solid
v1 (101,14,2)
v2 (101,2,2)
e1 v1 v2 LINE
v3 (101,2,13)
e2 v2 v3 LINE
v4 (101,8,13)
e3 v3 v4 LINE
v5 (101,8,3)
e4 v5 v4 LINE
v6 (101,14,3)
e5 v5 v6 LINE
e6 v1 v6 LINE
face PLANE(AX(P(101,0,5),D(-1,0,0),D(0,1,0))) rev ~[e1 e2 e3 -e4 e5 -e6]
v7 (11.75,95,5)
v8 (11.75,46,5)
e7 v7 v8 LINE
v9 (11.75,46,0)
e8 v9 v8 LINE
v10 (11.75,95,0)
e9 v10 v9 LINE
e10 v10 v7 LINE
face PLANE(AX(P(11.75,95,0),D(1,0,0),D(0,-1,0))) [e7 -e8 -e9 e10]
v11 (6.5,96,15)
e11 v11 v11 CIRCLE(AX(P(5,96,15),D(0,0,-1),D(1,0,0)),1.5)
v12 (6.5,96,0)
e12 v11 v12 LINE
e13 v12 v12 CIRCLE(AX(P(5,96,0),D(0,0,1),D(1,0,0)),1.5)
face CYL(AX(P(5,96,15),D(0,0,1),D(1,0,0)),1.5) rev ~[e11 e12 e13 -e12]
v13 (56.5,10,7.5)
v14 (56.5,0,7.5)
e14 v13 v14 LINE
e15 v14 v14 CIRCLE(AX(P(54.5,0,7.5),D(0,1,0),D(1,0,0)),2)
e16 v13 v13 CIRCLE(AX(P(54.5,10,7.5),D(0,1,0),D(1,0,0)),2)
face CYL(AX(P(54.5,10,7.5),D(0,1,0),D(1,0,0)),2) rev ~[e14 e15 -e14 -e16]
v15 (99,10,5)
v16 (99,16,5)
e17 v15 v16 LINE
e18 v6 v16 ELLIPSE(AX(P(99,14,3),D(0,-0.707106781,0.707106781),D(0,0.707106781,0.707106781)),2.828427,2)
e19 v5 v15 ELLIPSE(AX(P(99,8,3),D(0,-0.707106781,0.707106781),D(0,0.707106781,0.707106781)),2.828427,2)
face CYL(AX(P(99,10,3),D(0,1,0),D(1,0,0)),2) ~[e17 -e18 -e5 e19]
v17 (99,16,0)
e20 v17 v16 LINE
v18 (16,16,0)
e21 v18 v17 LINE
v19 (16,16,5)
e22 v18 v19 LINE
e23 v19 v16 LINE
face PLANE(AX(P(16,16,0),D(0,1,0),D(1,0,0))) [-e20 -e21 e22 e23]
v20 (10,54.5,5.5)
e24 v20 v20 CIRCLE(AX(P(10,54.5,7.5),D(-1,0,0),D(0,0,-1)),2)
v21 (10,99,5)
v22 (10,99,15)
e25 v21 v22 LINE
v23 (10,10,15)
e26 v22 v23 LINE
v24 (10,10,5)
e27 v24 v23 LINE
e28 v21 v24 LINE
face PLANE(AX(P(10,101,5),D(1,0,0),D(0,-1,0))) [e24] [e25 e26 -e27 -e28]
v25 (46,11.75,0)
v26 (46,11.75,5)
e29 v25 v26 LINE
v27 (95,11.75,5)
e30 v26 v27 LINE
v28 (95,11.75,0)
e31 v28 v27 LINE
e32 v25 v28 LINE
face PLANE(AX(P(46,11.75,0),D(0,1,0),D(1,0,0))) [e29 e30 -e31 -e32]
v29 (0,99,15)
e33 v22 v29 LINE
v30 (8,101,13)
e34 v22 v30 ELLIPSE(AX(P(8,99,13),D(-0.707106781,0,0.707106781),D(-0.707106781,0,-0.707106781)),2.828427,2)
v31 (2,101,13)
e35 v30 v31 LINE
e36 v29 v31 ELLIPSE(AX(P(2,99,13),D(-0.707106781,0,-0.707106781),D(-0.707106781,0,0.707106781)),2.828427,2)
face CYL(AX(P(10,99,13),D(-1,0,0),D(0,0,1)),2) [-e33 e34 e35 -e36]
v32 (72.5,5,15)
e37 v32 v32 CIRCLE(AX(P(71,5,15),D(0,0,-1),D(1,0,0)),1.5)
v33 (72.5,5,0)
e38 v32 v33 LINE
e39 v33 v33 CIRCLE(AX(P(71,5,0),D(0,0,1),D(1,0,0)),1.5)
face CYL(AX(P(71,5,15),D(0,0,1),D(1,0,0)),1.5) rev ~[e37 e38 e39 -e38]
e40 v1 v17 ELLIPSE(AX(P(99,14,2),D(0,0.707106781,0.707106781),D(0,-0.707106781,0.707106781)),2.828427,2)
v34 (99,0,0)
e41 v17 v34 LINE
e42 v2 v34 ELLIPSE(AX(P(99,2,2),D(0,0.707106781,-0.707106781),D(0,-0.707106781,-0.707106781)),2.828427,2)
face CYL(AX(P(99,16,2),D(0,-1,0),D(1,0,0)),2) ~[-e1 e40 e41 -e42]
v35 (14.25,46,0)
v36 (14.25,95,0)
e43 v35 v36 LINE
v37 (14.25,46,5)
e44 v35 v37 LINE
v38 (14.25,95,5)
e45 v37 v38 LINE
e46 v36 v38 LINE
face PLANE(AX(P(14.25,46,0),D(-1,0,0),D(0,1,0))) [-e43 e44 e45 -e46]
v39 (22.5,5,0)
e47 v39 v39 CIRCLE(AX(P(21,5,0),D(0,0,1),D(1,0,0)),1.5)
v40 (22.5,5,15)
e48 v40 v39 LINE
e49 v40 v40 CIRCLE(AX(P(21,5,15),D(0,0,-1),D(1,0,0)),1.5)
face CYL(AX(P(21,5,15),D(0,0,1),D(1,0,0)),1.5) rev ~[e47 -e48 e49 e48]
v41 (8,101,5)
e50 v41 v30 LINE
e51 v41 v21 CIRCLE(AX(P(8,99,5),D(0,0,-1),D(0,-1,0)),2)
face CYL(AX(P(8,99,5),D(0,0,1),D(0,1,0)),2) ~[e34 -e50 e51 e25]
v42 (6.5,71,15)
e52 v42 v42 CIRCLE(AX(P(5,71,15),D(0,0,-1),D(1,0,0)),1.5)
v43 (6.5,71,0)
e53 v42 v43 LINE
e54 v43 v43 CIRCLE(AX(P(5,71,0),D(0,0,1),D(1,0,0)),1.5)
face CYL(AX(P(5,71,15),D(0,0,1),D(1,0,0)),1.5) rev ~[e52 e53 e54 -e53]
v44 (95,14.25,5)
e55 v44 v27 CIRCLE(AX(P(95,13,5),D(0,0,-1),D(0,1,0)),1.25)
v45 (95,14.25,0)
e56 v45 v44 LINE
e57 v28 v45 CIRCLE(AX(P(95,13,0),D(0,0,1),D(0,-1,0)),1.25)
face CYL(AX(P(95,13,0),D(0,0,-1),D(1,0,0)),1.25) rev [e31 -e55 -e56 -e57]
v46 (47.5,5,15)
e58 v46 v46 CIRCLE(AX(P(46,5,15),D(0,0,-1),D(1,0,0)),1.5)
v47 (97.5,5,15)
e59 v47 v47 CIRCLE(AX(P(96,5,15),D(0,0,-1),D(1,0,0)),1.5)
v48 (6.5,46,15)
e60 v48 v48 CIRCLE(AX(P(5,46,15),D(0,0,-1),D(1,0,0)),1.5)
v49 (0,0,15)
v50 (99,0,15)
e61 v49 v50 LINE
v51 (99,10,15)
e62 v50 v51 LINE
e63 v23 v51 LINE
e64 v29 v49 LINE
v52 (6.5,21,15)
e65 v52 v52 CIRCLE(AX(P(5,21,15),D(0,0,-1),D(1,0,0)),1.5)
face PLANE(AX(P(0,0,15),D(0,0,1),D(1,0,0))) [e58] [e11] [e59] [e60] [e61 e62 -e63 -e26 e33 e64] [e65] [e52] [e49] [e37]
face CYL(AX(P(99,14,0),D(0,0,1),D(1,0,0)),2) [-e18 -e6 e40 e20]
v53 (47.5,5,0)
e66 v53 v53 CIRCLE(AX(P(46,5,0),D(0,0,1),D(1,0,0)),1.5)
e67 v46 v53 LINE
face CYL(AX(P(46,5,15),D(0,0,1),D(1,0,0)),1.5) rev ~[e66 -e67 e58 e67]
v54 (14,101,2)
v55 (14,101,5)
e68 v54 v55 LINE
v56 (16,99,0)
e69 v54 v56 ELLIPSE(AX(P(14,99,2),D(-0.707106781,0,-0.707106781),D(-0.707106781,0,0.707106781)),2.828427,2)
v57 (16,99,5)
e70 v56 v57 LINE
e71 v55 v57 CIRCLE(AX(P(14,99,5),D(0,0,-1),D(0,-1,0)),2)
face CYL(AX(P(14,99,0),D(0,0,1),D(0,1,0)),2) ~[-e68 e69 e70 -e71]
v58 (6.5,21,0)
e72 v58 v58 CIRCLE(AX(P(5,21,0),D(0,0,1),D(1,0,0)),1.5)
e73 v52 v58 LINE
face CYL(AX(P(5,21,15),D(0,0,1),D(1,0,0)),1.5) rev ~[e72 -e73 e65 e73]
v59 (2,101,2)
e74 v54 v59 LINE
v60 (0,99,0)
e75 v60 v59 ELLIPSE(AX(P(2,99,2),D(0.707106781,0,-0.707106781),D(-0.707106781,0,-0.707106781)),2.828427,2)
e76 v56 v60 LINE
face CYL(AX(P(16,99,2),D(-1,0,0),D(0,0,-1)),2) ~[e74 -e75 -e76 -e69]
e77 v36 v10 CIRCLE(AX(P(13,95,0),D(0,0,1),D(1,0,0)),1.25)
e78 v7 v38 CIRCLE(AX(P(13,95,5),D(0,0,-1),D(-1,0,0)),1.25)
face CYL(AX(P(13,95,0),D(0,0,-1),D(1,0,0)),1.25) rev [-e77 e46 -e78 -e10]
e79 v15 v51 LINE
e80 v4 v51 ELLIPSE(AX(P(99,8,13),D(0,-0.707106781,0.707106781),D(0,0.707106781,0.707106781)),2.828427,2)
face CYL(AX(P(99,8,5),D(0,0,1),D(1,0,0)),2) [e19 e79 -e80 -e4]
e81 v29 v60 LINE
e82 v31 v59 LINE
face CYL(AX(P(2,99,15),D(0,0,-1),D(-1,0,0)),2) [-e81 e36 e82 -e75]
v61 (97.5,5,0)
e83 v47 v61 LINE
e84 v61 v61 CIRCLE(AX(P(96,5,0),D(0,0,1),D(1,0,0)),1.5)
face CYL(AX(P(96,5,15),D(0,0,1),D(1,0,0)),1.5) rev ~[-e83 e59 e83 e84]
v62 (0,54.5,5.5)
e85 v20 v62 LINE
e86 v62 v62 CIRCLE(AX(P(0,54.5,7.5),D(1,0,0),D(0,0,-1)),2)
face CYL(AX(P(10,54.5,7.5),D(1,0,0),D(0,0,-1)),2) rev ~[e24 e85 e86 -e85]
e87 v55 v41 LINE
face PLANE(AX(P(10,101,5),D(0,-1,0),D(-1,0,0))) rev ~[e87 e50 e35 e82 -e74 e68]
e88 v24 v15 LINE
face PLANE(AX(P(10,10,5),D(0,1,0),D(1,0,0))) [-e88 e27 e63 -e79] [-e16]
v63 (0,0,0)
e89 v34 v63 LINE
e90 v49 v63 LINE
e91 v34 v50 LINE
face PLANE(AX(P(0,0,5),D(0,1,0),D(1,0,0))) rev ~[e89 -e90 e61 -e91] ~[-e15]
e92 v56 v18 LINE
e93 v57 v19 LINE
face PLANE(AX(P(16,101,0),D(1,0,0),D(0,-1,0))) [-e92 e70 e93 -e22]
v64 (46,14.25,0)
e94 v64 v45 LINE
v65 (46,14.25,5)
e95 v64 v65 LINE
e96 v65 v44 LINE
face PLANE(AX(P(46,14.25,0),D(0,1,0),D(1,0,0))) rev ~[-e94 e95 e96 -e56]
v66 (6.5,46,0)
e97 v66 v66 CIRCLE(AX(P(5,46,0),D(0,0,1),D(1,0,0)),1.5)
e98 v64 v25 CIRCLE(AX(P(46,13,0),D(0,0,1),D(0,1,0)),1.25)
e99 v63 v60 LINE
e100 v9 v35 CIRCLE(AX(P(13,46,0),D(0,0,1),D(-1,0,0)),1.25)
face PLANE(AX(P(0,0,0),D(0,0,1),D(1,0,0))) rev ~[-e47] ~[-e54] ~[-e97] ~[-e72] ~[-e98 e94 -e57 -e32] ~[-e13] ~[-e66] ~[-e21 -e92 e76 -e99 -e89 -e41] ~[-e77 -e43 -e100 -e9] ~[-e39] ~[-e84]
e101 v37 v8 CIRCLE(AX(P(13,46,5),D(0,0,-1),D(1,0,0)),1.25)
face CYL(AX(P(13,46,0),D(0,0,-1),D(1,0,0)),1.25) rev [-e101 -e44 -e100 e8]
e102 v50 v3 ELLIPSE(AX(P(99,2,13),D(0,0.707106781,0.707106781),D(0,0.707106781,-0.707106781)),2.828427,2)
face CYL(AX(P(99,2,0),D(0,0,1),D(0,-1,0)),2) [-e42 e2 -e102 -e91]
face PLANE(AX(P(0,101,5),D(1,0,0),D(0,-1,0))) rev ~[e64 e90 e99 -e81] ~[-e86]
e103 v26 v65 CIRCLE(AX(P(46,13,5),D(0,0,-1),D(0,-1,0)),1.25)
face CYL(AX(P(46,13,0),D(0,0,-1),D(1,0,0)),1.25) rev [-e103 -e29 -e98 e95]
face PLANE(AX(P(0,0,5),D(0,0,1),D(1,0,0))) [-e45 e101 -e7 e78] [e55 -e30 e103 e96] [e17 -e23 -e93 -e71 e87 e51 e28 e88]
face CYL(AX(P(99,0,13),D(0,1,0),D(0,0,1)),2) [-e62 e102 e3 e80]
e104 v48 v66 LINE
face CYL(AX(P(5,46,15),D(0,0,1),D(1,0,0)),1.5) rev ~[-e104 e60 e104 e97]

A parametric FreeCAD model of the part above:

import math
import FreeCAD as App
import Part
import Sketcher
Q = App.Units.Quantity


def edges_at(feature, points):
    """Names of the edges that pass closest to the given points."""
    edges = feature.Shape.Edges
    near = lambda p: min(range(len(edges)), key=lambda i: edges[i].distToShape(Part.Vertex(*p))[0])
    return sorted({f"Edge{near(p) + 1}" for p in points})


def add_polygon(sketch, points):
    """Adds a closed chain of lines whose ends are joined by coincident constraints."""
    first, n = sketch.GeometryCount, len(points)
    for a, b in zip(points, points[1:] + points[:1]):
        sketch.addGeometry(Part.LineSegment(App.Vector(*a, 0), App.Vector(*b, 0)), False)
    for i in range(n):
        sketch.addConstraint(Sketcher.Constraint("Coincident", first + i, 2, first + (i + 1) % n, 1))

doc = App.newDocument("Part")
body = doc.addObject("PartDesign::Body", "Body")

# Sketch on XY plane
sketch1 = body.newObject("Sketcher::SketchObject", "Sketch")
sketch1.AttachmentSupport = (doc.getObject("XY_Plane"), [""])
sketch1.MapMode = "FlatFace"
add_polygon(sketch1, [(0, 101), (0, 0), (101, 0), (101, 16), (16, 16), (16, 101)])  # lines 0-5
sketch1.addGeometry(Part.ArcOfCircle(Part.Circle(App.Vector(13, 95, 0), App.Vector(0, 0, 1), 1.2), math.radians(0), math.radians(180)), False)  # 6
sketch1.addGeometry(Part.LineSegment(App.Vector(14.2, 95, 0), App.Vector(14.2, 46, 0)), False)  # 7
sketch1.addGeometry(Part.ArcOfCircle(Part.Circle(App.Vector(13, 46, 0), App.Vector(0, 0, 1), 1.2), math.radians(180), math.radians(360)), False)  # 8
sketch1.addGeometry(Part.LineSegment(App.Vector(11.8, 46, 0), App.Vector(11.8, 95, 0)), False)  # 9
sketch1.addGeometry(Part.ArcOfCircle(Part.Circle(App.Vector(46, 13, 0), App.Vector(0, 0, 1), 1.2), math.radians(90), math.radians(270)), False)  # 10
sketch1.addGeometry(Part.LineSegment(App.Vector(46, 14.2, 0), App.Vector(95, 14.2, 0)), False)  # 11
sketch1.addGeometry(Part.ArcOfCircle(Part.Circle(App.Vector(95, 13, 0), App.Vector(0, 0, 1), 1.2), math.radians(-90), math.radians(90)), False)  # 12
sketch1.addGeometry(Part.LineSegment(App.Vector(95, 11.8, 0), App.Vector(46, 11.8, 0)), False)  # 13
sketch1.addConstraint(Sketcher.Constraint("Tangent", 6, 1, 7, 1))
sketch1.addConstraint(Sketcher.Constraint("Tangent", 7, 2, 8, 2))
sketch1.addConstraint(Sketcher.Constraint("Tangent", 8, 1, 9, 1))
sketch1.addConstraint(Sketcher.Constraint("Tangent", 9, 2, 6, 2))
sketch1.addConstraint(Sketcher.Constraint("Tangent", 10, 1, 11, 1))
sketch1.addConstraint(Sketcher.Constraint("Tangent", 11, 2, 12, 2))
sketch1.addConstraint(Sketcher.Constraint("Tangent", 12, 1, 13, 1))
sketch1.addConstraint(Sketcher.Constraint("Tangent", 13, 2, 10, 2))
sketch1.addConstraint(Sketcher.Constraint("Vertical", 0))
sketch1.addConstraint(Sketcher.Constraint("Horizontal", 1))
sketch1.addConstraint(Sketcher.Constraint("Vertical", 2))
sketch1.addConstraint(Sketcher.Constraint("Horizontal", 3))
sketch1.addConstraint(Sketcher.Constraint("Vertical", 4))
sketch1.addConstraint(Sketcher.Constraint("Horizontal", 5))
sketch1.addConstraint(Sketcher.Constraint("Vertical", 7))
sketch1.addConstraint(Sketcher.Constraint("Vertical", 9))
sketch1.addConstraint(Sketcher.Constraint("Horizontal", 11))
sketch1.addConstraint(Sketcher.Constraint("Horizontal", 13))
sketch1.addConstraint(Sketcher.Constraint("Coincident", 0, 2, -1, 1))
sketch1.addConstraint(Sketcher.Constraint("Equal", 8, 10))
sketch1.addConstraint(Sketcher.Constraint("Equal", 1, 0))
sketch1.addConstraint(Sketcher.Constraint("Equal", 5, 2))
sketch1.addConstraint(Sketcher.Constraint("Equal", 13, 7))
sketch1.addConstraint(Sketcher.Constraint("DistanceX", 1, 1, 1, 2, Q("101 mm")))
sketch1.addConstraint(Sketcher.Constraint("DistanceX", 5, 2, 5, 1, Q("16 mm")))
sketch1.addConstraint(Sketcher.Constraint("Radius", 6, Q("1.25 mm")))
sketch1.addConstraint(Sketcher.Constraint("DistanceX", 12, 3, 1, 2, Q("6 mm")))
sketch1.addConstraint(Sketcher.Constraint("DistanceY", 12, 3, 2, 2, Q("3 mm")))
sketch1.addConstraint(Sketcher.Constraint("DistanceY", 2, 2, 8, 3, Q("30 mm")))
sketch1.addConstraint(Sketcher.Constraint("DistanceX", 8, 3, 3, 2, Q("3 mm")))
sketch1.addConstraint(Sketcher.Constraint("DistanceX", 3, 2, 10, 3, Q("30 mm")))
pad1 = body.newObject("PartDesign::Pad", "Pad")
pad1.Profile = sketch1
pad1.Length = 5

# Sketch on XY plane
sketch2 = body.newObject("Sketcher::SketchObject", "Sketch001")
sketch2.AttachmentSupport = (doc.getObject("XY_Plane"), [""])
sketch2.MapMode = "FlatFace"
sketch2.AttachmentOffset = App.Placement(App.Vector(0, 0, 5), App.Rotation())
add_polygon(sketch2, [(0, 0), (101, 0), (101, 10), (10, 10), (10, 101), (0, 101)])  # lines 0-5
sketch2.addConstraint(Sketcher.Constraint("Horizontal", 0))
sketch2.addConstraint(Sketcher.Constraint("Vertical", 1))
sketch2.addConstraint(Sketcher.Constraint("Horizontal", 2))
sketch2.addConstraint(Sketcher.Constraint("Vertical", 3))
sketch2.addConstraint(Sketcher.Constraint("Horizontal", 4))
sketch2.addConstraint(Sketcher.Constraint("Vertical", 5))
sketch2.addConstraint(Sketcher.Constraint("Coincident", 5, 2, -1, 1))
sketch2.addConstraint(Sketcher.Constraint("Equal", 4, 1))
sketch2.addConstraint(Sketcher.Constraint("Equal", 2, 3))
sketch2.addConstraint(Sketcher.Constraint("DistanceX", 4, 2, 4, 1, Q("10 mm")))
sketch2.addConstraint(Sketcher.Constraint("DistanceX", 0, 1, 0, 2, Q("101 mm")))
pad2 = body.newObject("PartDesign::Pad", "Pad001")
pad2.Profile = sketch2
pad2.Length = 10

# Sketch on XY plane
sketch3 = body.newObject("Sketcher::SketchObject", "Sketch002")
sketch3.AttachmentSupport = (doc.getObject("XY_Plane"), [""])
sketch3.MapMode = "FlatFace"
sketch3.AttachmentOffset = App.Placement(App.Vector(0, 0, 15), App.Rotation())
sketch3.addGeometry(Part.Circle(App.Vector(5, 96, 0), App.Vector(0, 0, 1), 1.5), False)
sketch3.addGeometry(Part.Circle(App.Vector(96, 5, 0), App.Vector(0, 0, 1), 1.5), False)
sketch3.addGeometry(Part.Circle(App.Vector(5, 71, 0), App.Vector(0, 0, 1), 1.5), False)
sketch3.addGeometry(Part.Circle(App.Vector(71, 5, 0), App.Vector(0, 0, 1), 1.5), False)
sketch3.addGeometry(Part.Circle(App.Vector(5, 46, 0), App.Vector(0, 0, 1), 1.5), False)
sketch3.addGeometry(Part.Circle(App.Vector(46, 5, 0), App.Vector(0, 0, 1), 1.5), False)
sketch3.addGeometry(Part.Circle(App.Vector(5, 21, 0), App.Vector(0, 0, 1), 1.5), False)
sketch3.addGeometry(Part.Circle(App.Vector(21, 5, 0), App.Vector(0, 0, 1), 1.5), False)
sketch3.addConstraint(Sketcher.Constraint("Equal", 0, 1))
sketch3.addConstraint(Sketcher.Constraint("Equal", 1, 2))
sketch3.addConstraint(Sketcher.Constraint("Equal", 2, 3))
sketch3.addConstraint(Sketcher.Constraint("Equal", 3, 4))
sketch3.addConstraint(Sketcher.Constraint("Equal", 4, 5))
sketch3.addConstraint(Sketcher.Constraint("Equal", 5, 6))
sketch3.addConstraint(Sketcher.Constraint("Equal", 6, 7))
sketch3.addConstraint(Sketcher.Constraint("Horizontal", 1, 3, 3, 3))
sketch3.addConstraint(Sketcher.Constraint("Horizontal", 3, 3, 5, 3))
sketch3.addConstraint(Sketcher.Constraint("Horizontal", 5, 3, 7, 3))
sketch3.addConstraint(Sketcher.Constraint("Vertical", 0, 3, 2, 3))
sketch3.addConstraint(Sketcher.Constraint("Vertical", 2, 3, 4, 3))
sketch3.addConstraint(Sketcher.Constraint("Vertical", 4, 3, 6, 3))
sketch3.addConstraint(Sketcher.Constraint("Diameter", 0, Q("3 mm")))
sketch3.addConstraint(Sketcher.Constraint("DistanceX", -1, 1, 0, 3, Q("5 mm")))
sketch3.addConstraint(Sketcher.Constraint("DistanceY", -1, 1, 1, 3, Q("5 mm")))
sketch3.addConstraint(Sketcher.Constraint("DistanceY", 2, 3, 0, 3, Q("25 mm")))
sketch3.addConstraint(Sketcher.Constraint("DistanceX", 3, 3, 1, 3, Q("25 mm")))
sketch3.addConstraint(Sketcher.Constraint("DistanceY", 4, 3, 2, 3, Q("25 mm")))
sketch3.addConstraint(Sketcher.Constraint("DistanceX", 5, 3, 3, 3, Q("25 mm")))
sketch3.addConstraint(Sketcher.Constraint("DistanceY", 6, 3, 4, 3, Q("25 mm")))
sketch3.addConstraint(Sketcher.Constraint("DistanceX", 7, 3, 5, 3, Q("25 mm")))
sketch3.addConstraint(Sketcher.Constraint("DistanceY", -1, 1, 0, 3, Q("96 mm")))
sketch3.addConstraint(Sketcher.Constraint("DistanceX", -1, 1, 1, 3, Q("96 mm")))
pocket1 = body.newObject("PartDesign::Pocket", "Pocket")
pocket1.Profile = sketch3
pocket1.Length = 16
doc.recompute()

fillet = body.newObject("PartDesign::Fillet", "Fillet")
fillet.Base = (pocket1, edges_at(pocket1, [
    (5, 101, 15),
    (10, 101, 10),
    (16, 101, 2.5),
    (8, 101, 0),
    (0, 101, 7.5),
    (101, 16, 2.5),
    (101, 8, 0),
    (101, 13, 5),
    (101, 10, 10),
    (101, 5, 15),
    (101, 0, 7.5),
]))
fillet.Radius = 2

# Sketch on YZ plane
sketch4 = body.newObject("Sketcher::SketchObject", "Sketch003")
sketch4.AttachmentSupport = (doc.getObject("YZ_Plane"), [""])
sketch4.MapMode = "FlatFace"
sketch4.AttachmentOffset = App.Placement(App.Vector(0, 0, 10), App.Rotation())
sketch4.addGeometry(Part.Circle(App.Vector(54.5, 7.5, 0), App.Vector(0, 0, 1), 2), False)
sketch4.addConstraint(Sketcher.Constraint("Diameter", 0, Q("4 mm")))
sketch4.addConstraint(Sketcher.Constraint("DistanceX", -1, 1, 0, 3, Q("54.5 mm")))
sketch4.addConstraint(Sketcher.Constraint("DistanceY", -1, 1, 0, 3, Q("7.5 mm")))
pocket2 = body.newObject("PartDesign::Pocket", "Pocket001")
pocket2.Profile = sketch4
pocket2.Length = 10

# Sketch on XZ plane
sketch5 = body.newObject("Sketcher::SketchObject", "Sketch004")
sketch5.AttachmentSupport = (doc.getObject("XZ_Plane"), [""])
sketch5.MapMode = "FlatFace"
sketch5.AttachmentOffset = App.Placement(App.Vector(0, 0, -10), App.Rotation())
sketch5.addGeometry(Part.Circle(App.Vector(54.5, 7.5, 0), App.Vector(0, 0, 1), 2), False)
sketch5.addConstraint(Sketcher.Constraint("Diameter", 0, Q("4 mm")))
sketch5.addConstraint(Sketcher.Constraint("DistanceX", -1, 1, 0, 3, Q("54.5 mm")))
sketch5.addConstraint(Sketcher.Constraint("DistanceY", -1, 1, 0, 3, Q("7.5 mm")))
pocket3 = body.newObject("PartDesign::Pocket", "Pocket002")
pocket3.Profile = sketch5
pocket3.Length = 10
pocket3.Reversed = True

doc.recompute()
